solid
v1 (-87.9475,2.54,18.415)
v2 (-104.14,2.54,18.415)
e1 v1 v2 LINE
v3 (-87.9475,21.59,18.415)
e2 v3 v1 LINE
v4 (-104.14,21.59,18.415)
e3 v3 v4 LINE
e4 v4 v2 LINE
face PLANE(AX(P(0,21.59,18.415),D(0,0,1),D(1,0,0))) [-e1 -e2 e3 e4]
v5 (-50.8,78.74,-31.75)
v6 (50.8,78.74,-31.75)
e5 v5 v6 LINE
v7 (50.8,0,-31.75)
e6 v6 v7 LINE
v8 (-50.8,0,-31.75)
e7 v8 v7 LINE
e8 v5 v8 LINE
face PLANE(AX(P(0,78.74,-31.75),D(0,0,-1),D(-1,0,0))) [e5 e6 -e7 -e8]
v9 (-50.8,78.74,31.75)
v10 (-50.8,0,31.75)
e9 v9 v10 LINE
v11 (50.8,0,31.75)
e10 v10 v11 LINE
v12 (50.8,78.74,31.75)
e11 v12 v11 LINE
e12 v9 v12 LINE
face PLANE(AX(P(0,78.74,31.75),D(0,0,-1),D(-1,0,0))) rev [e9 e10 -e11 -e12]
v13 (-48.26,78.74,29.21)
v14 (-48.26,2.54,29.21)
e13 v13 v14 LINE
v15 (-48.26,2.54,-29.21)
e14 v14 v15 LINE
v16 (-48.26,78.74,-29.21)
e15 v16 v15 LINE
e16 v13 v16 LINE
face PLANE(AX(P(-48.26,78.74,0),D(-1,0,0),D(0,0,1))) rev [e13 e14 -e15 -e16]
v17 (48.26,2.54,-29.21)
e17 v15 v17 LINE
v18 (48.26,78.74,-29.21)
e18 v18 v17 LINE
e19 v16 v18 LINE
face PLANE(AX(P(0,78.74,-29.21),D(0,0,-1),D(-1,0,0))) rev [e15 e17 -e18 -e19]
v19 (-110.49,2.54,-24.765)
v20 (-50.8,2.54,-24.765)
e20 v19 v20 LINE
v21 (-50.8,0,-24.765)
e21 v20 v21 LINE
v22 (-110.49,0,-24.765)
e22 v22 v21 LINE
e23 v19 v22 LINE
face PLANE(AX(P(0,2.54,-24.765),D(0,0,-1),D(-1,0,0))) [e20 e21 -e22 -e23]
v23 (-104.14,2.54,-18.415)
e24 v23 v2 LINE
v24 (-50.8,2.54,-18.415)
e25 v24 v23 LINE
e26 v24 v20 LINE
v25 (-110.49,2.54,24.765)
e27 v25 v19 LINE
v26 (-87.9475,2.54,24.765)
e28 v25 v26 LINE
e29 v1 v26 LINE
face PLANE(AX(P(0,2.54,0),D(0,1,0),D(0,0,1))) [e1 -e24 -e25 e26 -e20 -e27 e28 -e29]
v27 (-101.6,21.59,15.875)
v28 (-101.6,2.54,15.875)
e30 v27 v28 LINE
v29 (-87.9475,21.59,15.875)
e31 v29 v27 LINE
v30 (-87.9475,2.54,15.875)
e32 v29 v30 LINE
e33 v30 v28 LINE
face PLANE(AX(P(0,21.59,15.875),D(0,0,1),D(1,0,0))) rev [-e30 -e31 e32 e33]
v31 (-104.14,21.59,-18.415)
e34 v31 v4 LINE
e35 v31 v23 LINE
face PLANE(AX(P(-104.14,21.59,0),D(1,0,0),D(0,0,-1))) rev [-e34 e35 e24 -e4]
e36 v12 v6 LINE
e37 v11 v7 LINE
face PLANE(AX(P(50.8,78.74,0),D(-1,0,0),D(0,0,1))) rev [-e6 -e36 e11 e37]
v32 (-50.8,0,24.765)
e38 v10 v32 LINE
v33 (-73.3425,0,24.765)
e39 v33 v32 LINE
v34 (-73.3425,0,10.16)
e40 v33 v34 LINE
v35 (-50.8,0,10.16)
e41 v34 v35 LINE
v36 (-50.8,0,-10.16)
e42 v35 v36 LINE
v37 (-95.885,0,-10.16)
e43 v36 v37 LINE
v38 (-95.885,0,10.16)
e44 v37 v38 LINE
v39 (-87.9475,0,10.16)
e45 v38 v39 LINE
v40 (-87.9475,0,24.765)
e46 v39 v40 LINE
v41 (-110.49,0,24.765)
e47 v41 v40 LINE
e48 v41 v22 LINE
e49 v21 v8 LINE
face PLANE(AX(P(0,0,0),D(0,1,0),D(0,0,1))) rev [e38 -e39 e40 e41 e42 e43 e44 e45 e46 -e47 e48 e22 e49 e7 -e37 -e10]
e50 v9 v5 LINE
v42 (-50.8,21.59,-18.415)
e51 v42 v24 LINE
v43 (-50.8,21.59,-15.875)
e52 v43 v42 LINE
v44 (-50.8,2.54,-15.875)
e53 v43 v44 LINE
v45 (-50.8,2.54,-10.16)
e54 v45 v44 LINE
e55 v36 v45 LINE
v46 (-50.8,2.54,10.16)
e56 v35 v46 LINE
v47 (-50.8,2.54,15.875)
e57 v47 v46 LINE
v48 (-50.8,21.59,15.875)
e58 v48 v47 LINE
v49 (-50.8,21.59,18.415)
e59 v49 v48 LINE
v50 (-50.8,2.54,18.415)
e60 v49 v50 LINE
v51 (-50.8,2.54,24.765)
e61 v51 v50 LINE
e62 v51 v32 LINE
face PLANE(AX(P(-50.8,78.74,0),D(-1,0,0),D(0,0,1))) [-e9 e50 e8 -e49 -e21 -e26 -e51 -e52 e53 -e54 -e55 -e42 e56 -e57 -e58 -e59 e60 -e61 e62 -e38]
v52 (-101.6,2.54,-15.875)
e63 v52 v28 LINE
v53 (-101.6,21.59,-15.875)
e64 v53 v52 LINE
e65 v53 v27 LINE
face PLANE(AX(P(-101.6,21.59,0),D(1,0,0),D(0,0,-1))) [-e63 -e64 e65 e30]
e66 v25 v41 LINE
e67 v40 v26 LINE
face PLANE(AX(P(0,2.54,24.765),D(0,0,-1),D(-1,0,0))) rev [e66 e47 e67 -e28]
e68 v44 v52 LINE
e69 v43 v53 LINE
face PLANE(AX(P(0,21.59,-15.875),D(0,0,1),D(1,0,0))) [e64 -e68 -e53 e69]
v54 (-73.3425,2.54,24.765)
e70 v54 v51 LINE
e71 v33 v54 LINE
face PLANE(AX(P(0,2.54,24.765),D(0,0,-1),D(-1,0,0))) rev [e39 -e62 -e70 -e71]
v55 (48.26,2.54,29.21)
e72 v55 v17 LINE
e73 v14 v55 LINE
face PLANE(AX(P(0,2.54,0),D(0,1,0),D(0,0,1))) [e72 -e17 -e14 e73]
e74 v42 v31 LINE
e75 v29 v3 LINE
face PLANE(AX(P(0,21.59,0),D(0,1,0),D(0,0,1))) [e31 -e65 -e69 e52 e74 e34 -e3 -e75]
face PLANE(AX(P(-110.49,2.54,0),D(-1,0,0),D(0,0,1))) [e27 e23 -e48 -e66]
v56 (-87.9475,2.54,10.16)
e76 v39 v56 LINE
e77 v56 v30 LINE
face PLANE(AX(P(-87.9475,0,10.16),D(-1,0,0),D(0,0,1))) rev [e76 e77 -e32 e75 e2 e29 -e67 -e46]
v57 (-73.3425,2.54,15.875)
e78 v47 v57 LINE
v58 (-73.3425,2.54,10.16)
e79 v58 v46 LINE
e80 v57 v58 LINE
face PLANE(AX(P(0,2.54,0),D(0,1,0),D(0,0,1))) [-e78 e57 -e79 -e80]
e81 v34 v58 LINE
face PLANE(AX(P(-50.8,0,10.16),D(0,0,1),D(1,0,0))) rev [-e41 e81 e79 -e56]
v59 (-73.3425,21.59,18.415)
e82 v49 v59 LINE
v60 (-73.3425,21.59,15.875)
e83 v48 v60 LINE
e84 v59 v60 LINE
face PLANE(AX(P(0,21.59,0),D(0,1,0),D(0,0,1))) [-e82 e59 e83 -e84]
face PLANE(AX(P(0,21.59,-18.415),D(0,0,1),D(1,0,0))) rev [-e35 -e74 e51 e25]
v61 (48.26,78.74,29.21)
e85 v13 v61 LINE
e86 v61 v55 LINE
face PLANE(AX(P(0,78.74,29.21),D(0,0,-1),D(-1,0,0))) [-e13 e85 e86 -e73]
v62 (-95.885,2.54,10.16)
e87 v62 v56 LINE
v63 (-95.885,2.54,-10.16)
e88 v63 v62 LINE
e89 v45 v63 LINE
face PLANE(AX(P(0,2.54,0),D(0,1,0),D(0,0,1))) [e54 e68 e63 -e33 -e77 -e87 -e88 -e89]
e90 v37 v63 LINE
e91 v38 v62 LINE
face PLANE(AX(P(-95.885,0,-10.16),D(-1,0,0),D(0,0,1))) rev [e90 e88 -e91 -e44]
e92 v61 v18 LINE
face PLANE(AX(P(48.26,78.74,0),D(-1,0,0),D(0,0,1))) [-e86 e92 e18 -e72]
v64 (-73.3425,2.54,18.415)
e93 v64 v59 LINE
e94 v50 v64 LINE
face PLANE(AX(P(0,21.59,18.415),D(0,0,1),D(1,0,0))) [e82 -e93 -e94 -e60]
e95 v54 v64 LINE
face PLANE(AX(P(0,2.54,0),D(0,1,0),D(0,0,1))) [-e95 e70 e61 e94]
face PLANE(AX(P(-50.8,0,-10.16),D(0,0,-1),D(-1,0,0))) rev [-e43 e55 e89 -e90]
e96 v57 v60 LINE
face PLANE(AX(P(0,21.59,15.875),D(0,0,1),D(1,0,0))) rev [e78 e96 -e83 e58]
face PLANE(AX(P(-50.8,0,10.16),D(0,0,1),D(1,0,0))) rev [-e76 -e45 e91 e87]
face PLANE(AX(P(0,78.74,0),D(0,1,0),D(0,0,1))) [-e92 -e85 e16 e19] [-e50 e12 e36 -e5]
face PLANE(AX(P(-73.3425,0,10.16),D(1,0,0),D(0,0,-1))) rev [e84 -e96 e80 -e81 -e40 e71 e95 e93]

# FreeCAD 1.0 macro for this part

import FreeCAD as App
import Part
import Sketcher

V = App.Vector
Q = App.Units.Quantity


def faces_at(feature, points):
    """Names of the faces that lie closest to the given points."""
    faces = feature.Shape.Faces
    near = lambda p: min(range(len(faces)), key=lambda i: faces[i].distToShape(Part.Vertex(*p))[0])
    return sorted({f"Face{near(p) + 1}" for p in points})


def add_polygon(sketch, points):
    """Adds a closed chain of lines whose ends are joined by coincident constraints."""
    first, n = sketch.GeometryCount, len(points)
    for a, b in zip(points, points[1:] + points[:1]):
        sketch.addGeometry(Part.LineSegment(App.Vector(*a, 0), App.Vector(*b, 0)), False)
    for i in range(n):
        sketch.addConstraint(Sketcher.Constraint("Coincident", first + i, 2, first + (i + 1) % n, 1))

doc = App.newDocument("Part")
body = doc.addObject("PartDesign::Body", "Body")

sketch1 = doc.addObject("Sketcher::SketchObject", "Sketch")
body.addObject(sketch1)
sketch1.AttachmentSupport = (doc.XZ_Plane, [""])
sketch1.MapMode = "FlatFace"
add_polygon(sketch1, [(-51, 32), (51, 32), (51, -32), (-51, -32)])
sketch1.addConstraint([
    Sketcher.Constraint("Horizontal", 0),
    Sketcher.Constraint("Vertical", 1),
    Sketcher.Constraint("Horizontal", 2),
    Sketcher.Constraint("Vertical", 3),
    Sketcher.Constraint("Symmetric", 0, 2, 2, 2, -1, 1),
    Sketcher.Constraint("DistanceX", 0, 1, 0, 2, Q("4 in")),
    Sketcher.Constraint("DistanceY", 1, 2, 1, 1, Q("2.5 in")),
])
pad1 = doc.addObject("PartDesign::Pad", "Pad")
body.addObject(pad1)
pad1.Profile = sketch1
pad1.Length = Q("3.1 in")
pad1.Reversed = True
doc.recompute()

thickness = doc.addObject("PartDesign::Thickness", "Thickness")
body.addObject(thickness)
thickness.Base = (pad1, faces_at(pad1, [(0, 78.74, 0)]))
thickness.Value = Q("0.1 in")
thickness.Reversed = True
thickness.Join = "Intersection"

sketch2 = doc.addObject("Sketcher::SketchObject", "Sketch001")
body.addObject(sketch2)
sketch2.AttachmentSupport = (doc.XZ_Plane, [""])
sketch2.MapMode = "FlatFace"
add_polygon(sketch2, [(-110, -25), (-110, 25), (-51, 25), (-51, -25)])
sketch2.addConstraint([
    Sketcher.Constraint("Vertical", 0),
    Sketcher.Constraint("Horizontal", 1),
    Sketcher.Constraint("Vertical", 2),
    Sketcher.Constraint("Horizontal", 3),
    Sketcher.Constraint("DistanceX", 1, 2, -1, 1, Q("2 in")),
    Sketcher.Constraint("DistanceX", 1, 1, 1, 2, Q("2.35 in")),
    Sketcher.Constraint("DistanceY", 0, 1, 0, 2, Q("1.95 in")),
    Sketcher.Constraint("DistanceY", -1, 1, 0, 2, Q("0.975 in")),
])
pad2 = doc.addObject("PartDesign::Pad", "Pad001")
body.addObject(pad2)
pad2.Profile = sketch2
pad2.Length = Q("0.1 in")
pad2.Reversed = True

sketch3 = doc.addObject("Sketcher::SketchObject", "Sketch002")
body.addObject(sketch3)
sketch3.AttachmentSupport = (doc.XZ_Plane, [""])
sketch3.MapMode = "FlatFace"
sketch3.AttachmentOffset = App.Placement(V(0, 0, -0.1 * 25.4), App.Rotation())
add_polygon(sketch3, [(-50.8, -15.9), (-50.8, -18.4), (-104.1, -18.4), (-104.1, 18.4), (-50.8, 18.4), (-50.8, 15.9), (-101.6, 15.9), (-101.6, -15.9)])
sketch3.addConstraint([
    Sketcher.Constraint("Vertical", 0),
    Sketcher.Constraint("Horizontal", 1),
    Sketcher.Constraint("Vertical", 2),
    Sketcher.Constraint("Horizontal", 3),
    Sketcher.Constraint("Vertical", 4),
    Sketcher.Constraint("Horizontal", 5),
    Sketcher.Constraint("Vertical", 6),
    Sketcher.Constraint("Horizontal", 7),
    Sketcher.Constraint("Symmetric", 0, 2, 3, 2, -1),
    Sketcher.Constraint("Equal", 0, 4),
    Sketcher.Constraint("DistanceX", 5, 2, 5, 1, Q("2 in")),
    Sketcher.Constraint("DistanceX", 1, 2, 1, 1, Q("2.1 in")),
    Sketcher.Constraint("DistanceY", 0, 2, 0, 1, Q("0.1 in")),
    Sketcher.Constraint("DistanceX", 0, 2, -1, 1, Q("2 in")),
    Sketcher.Constraint("DistanceY", 2, 1, 2, 2, Q("1.45 in")),
])
pad3 = doc.addObject("PartDesign::Pad", "Pad002")
body.addObject(pad3)
pad3.Profile = sketch3
pad3.Length = Q("0.75 in")
pad3.Reversed = True

sketch4 = doc.addObject("Sketcher::SketchObject", "Sketch003")
body.addObject(sketch4)
sketch4.AttachmentSupport = (doc.XZ_Plane, [""])
sketch4.MapMode = "FlatFace"
sketch4.AttachmentOffset = App.Placement(V(0, 0, -0.1 * 25.4), App.Rotation())
add_polygon(sketch4, [(-96, -10), (-96, 10), (-51, 10), (-51, -10)])
sketch4.addConstraint([
    Sketcher.Constraint("Vertical", 0),
    Sketcher.Constraint("Horizontal", 1),
    Sketcher.Constraint("Vertical", 2),
    Sketcher.Constraint("Horizontal", 3),
    Sketcher.Constraint("DistanceY", 0, 1, 0, 2, Q("0.8 in")),
    Sketcher.Constraint("DistanceX", 1, 2, -1, 1, Q("2 in")),
    Sketcher.Constraint("DistanceY", -1, 1, 0, 2, Q("0.4 in")),
    Sketcher.Constraint("DistanceX", 1, 1, 1, 2, Q("1.775 in")),
])
pocket1 = doc.addObject("PartDesign::Pocket", "Pocket")
body.addObject(pocket1)
pocket1.Profile = sketch4
pocket1.Type = "ThroughAll"
pocket1.Reversed = True

sketch5 = doc.addObject("Sketcher::SketchObject", "Sketch004")
body.addObject(sketch5)
sketch5.AttachmentSupport = (doc.XZ_Plane, [""])
sketch5.MapMode = "FlatFace"
sketch5.AttachmentOffset = App.Placement(V(0, 0, -0.85 * 25.4), App.Rotation())
add_polygon(sketch5, [(-88, 10), (-88, 25), (-73, 25), (-73, 10)])
sketch5.addConstraint([
    Sketcher.Constraint("Vertical", 0),
    Sketcher.Constraint("Horizontal", 1),
    Sketcher.Constraint("Vertical", 2),
    Sketcher.Constraint("Horizontal", 3),
    Sketcher.Constraint("Equal", 3, 0),
    Sketcher.Constraint("DistanceY", -1, 1, 2, 2, Q("0.4 in")),
    Sketcher.Constraint("DistanceX", 1, 1, 1, 2, Q("0.575 in")),
    Sketcher.Constraint("DistanceX", 0, 2, -1, 1, Q("3.4625 in")),
])
pocket2 = doc.addObject("PartDesign::Pocket", "Pocket001")
body.addObject(pocket2)
pocket2.Profile = sketch5
pocket2.Type = "ThroughAll"
pocket2.Reversed = True

doc.recompute()
